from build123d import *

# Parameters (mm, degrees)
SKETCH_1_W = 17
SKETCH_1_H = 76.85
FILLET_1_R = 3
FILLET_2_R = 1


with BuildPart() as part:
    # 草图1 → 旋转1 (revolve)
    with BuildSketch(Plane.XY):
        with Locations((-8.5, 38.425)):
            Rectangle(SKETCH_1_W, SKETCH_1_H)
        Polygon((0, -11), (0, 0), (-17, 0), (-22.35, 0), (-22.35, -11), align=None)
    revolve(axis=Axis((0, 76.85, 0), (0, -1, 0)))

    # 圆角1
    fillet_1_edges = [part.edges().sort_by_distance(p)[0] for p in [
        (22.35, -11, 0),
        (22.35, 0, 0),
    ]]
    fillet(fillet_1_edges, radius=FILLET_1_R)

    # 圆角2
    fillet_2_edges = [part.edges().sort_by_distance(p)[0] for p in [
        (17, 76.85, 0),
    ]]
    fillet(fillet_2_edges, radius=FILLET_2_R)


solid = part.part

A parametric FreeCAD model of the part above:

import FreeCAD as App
import Part
import Sketcher
from FreeCAD import Vector


def edges_at(feature, points):
    """Names of the edges that pass closest to the given points."""
    edges = feature.Shape.Edges
    near = lambda p: min(range(len(edges)), key=lambda i: edges[i].distToShape(Part.Vertex(*p))[0])
    return sorted({f"Edge{near(p) + 1}" for p in points})


def add_polygon(sketch, points):
    """Adds a closed chain of lines whose ends are joined by coincident constraints."""
    first, n = sketch.GeometryCount, len(points)
    for a, b in zip(points, points[1:] + points[:1]):
        sketch.addGeometry(Part.LineSegment(App.Vector(*a, 0), App.Vector(*b, 0)), False)
    for i in range(n):
        sketch.addConstraint(Sketcher.Constraint("Coincident", first + i, 2, first + (i + 1) % n, 1))

doc = App.newDocument("Part")
params = doc.addObject("Spreadsheet::Sheet", "Params")
for row, (alias, value) in enumerate([
    ("sketch1_width", "17 mm"),
    ("sketch1_height", "11 mm"),
    ("sketch1_width2", "5.35 mm"),
    ("sketch1_height2", "76.85 mm"),
    ("revolution_angle", "360 deg"),
    ("fillet_radius", "3 mm"),
    ("fillet2_radius", "1 mm"),
], start=1):
    params.set(f"A{row}", alias)
    params.set(f"B{row}", "=" + value)
    params.setAlias(f"B{row}", alias)

body = doc.addObject("PartDesign::Body", "Body")

sketch1 = body.newObject("Sketcher::SketchObject", "Sketch")
sketch1.AttachmentSupport = (doc.getObject("XY_Plane"), [""])
sketch1.MapMode = "FlatFace"
add_polygon(sketch1, [(-17, 77), (-17, 0), (-22, 0), (-22, -11), (0, -11), (0, 77)])
sketch1.addConstraint(Sketcher.Constraint("Vertical", 0))
sketch1.addConstraint(Sketcher.Constraint("Horizontal", 1))
sketch1.addConstraint(Sketcher.Constraint("Vertical", 2))
sketch1.addConstraint(Sketcher.Constraint("Horizontal", 3))
sketch1.addConstraint(Sketcher.Constraint("Vertical", 4))
sketch1.addConstraint(Sketcher.Constraint("Horizontal", 5))
sketch1.addConstraint(Sketcher.Constraint("PointOnObject", 0, 2, -1))
sketch1.addConstraint(Sketcher.Constraint("PointOnObject", 3, 2, -2))
sketch1.addConstraint(Sketcher.Constraint("DistanceX", 5, 2, 5, 1, 17.0))
sketch1.addConstraint(Sketcher.Constraint("DistanceY", 2, 2, 2, 1, 11.0))
sketch1.addConstraint(Sketcher.Constraint("DistanceX", 1, 2, 1, 1, 5.35))
sketch1.addConstraint(Sketcher.Constraint("DistanceY", 0, 2, 0, 1, 76.85))
sketch1.setExpression("Constraints[14]", "Params.sketch1_width")
sketch1.setExpression("Constraints[15]", "Params.sketch1_height")
sketch1.setExpression("Constraints[16]", "Params.sketch1_width2")
sketch1.setExpression("Constraints[17]", "Params.sketch1_height2")
revolution = body.newObject("PartDesign::Revolution", "Revolution")
revolution.Profile = sketch1
revolution.ReferenceAxis = (sketch1, ["V_Axis"])
revolution.setExpression("Angle", "Params.revolution_angle")
doc.recompute()

fillet = body.newObject("PartDesign::Fillet", "Fillet")
fillet.Base = (revolution, edges_at(revolution, [(22.35, -11, 0), (22.35, 0, 0)]))
fillet.setExpression("Radius", "Params.fillet_radius")
doc.recompute()

fillet2 = body.newObject("PartDesign::Fillet", "Fillet001")
fillet2.Base = (fillet, edges_at(fillet, [(17, 76.85, 0)]))
fillet2.setExpression("Radius", "Params.fillet2_radius")

doc.recompute()
